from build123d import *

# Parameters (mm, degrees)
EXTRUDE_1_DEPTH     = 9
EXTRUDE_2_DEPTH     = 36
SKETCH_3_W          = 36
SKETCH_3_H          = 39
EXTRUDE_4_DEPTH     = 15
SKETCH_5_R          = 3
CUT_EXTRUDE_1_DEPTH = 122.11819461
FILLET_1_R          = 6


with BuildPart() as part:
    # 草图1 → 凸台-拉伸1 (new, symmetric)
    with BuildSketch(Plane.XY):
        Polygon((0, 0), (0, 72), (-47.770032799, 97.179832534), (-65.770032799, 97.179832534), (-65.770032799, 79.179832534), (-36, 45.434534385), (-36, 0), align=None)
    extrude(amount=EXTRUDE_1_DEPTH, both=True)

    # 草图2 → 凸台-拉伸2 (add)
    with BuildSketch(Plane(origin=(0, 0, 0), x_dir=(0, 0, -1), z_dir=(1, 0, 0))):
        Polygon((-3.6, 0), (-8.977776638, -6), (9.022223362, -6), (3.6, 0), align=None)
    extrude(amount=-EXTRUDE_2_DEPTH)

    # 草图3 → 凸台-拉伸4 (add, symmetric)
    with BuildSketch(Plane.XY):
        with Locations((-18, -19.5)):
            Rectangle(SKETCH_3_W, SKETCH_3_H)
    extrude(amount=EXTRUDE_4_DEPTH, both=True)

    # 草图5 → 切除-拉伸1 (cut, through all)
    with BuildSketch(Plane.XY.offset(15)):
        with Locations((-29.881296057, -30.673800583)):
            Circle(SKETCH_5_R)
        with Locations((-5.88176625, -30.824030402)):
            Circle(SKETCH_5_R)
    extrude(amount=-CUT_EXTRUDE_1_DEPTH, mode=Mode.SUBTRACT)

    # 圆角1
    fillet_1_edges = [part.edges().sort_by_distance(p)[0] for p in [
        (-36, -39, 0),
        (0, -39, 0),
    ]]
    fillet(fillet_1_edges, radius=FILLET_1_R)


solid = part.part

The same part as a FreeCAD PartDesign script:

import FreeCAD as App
import Part
import Sketcher
from FreeCAD import Vector


def edges_at(feature, points):
    """Names of the edges that pass closest to the given points."""
    edges = feature.Shape.Edges
    near = lambda p: min(range(len(edges)), key=lambda i: edges[i].distToShape(Part.Vertex(*p))[0])
    return sorted({f"Edge{near(p) + 1}" for p in points})

doc = App.newDocument("Part")
body = doc.addObject("PartDesign::Body", "Body")

# Sketch on XY plane
sketch1 = doc.addObject("Sketcher::SketchObject", "Sketch")
body.addObject(sketch1)
sketch1.AttachmentSupport = (doc.XY_Plane, [""])
sketch1.MapMode = "FlatFace"
sketch1.addGeometry([
    Part.LineSegment(Vector(0, 0, 0), Vector(0, 72, 0)),  # 0
    Part.LineSegment(Vector(0, 72, 0), Vector(-47.770033, 97.179833, 0)),  # 1
    Part.LineSegment(Vector(-47.770033, 97.179833, 0), Vector(-65.770033, 97.179833, 0)),  # 2
    Part.LineSegment(Vector(-65.770033, 97.179833, 0), Vector(-65.770033, 79.179833, 0)),  # 3
    Part.LineSegment(Vector(-65.770033, 79.179833, 0), Vector(-36, 45.434534, 0)),  # 4
    Part.LineSegment(Vector(-36, 45.434534, 0), Vector(-36, 0, 0)),  # 5
    Part.LineSegment(Vector(-36, 0, 0), Vector(0, 0, 0)),  # 6
], False)
sketch1.addConstraint([
    Sketcher.Constraint("Coincident", 0, 2, 1, 1),
    Sketcher.Constraint("Coincident", 1, 2, 2, 1),
    Sketcher.Constraint("Coincident", 2, 2, 3, 1),
    Sketcher.Constraint("Coincident", 3, 2, 4, 1),
    Sketcher.Constraint("Coincident", 4, 2, 5, 1),
    Sketcher.Constraint("Coincident", 5, 2, 6, 1),
    Sketcher.Constraint("Coincident", 6, 2, 0, 1),
    Sketcher.Constraint("Vertical", 0),
    Sketcher.Constraint("Horizontal", 2),
    Sketcher.Constraint("Vertical", 3),
    Sketcher.Constraint("Vertical", 5),
    Sketcher.Constraint("Horizontal", 6),
    Sketcher.Constraint("Coincident", 6, 2, -1, 1),
    Sketcher.Constraint("Equal", 2, 3),
    Sketcher.Constraint("DistanceX", 2, 2, 2, 1, 18.0),
    Sketcher.Constraint("DistanceX", 6, 1, 6, 2, 36.0),
    Sketcher.Constraint("DistanceY", 0, 1, 0, 2, 72.0),
    Sketcher.Constraint("Distance", 1, 54.0),
    Sketcher.Constraint("Distance", 4, 45.0),
    Sketcher.Constraint("DistanceY", 4, 2, 3, 2, 33.745298),
])
pad1 = doc.addObject("PartDesign::Pad", "Pad")
body.addObject(pad1)
pad1.Profile = sketch1
pad1.Length = 18
pad1.Midplane = True

# Sketch on YZ plane
sketch2 = doc.addObject("Sketcher::SketchObject", "Sketch001")
body.addObject(sketch2)
sketch2.AttachmentSupport = (doc.YZ_Plane, [""])
sketch2.MapMode = "FlatFace"
sketch2.addGeometry([
    Part.LineSegment(Vector(0, 3.6, 0), Vector(-6, 8.977777, 0)),
    Part.LineSegment(Vector(-6, 8.977777, 0), Vector(-6, -9.022223, 0)),
    Part.LineSegment(Vector(-6, -9.022223, 0), Vector(0, -3.6, 0)),
    Part.LineSegment(Vector(0, -3.6, 0), Vector(0, 3.6, 0)),
], False)
sketch2.addConstraint([
    Sketcher.Constraint("Coincident", 0, 2, 1, 1),
    Sketcher.Constraint("Coincident", 1, 2, 2, 1),
    Sketcher.Constraint("Coincident", 2, 2, 3, 1),
    Sketcher.Constraint("Coincident", 3, 2, 0, 1),
    Sketcher.Constraint("Vertical", 1),
    Sketcher.Constraint("Vertical", 3),
    Sketcher.Constraint("Symmetric", 2, 2, 3, 2, -1, 1),
    Sketcher.Constraint("DistanceY", 1, 2, 1, 1, 18.0),
    Sketcher.Constraint("DistanceY", 3, 1, 3, 2, 7.2),
    Sketcher.Constraint("DistanceX", 0, 2, -1, 1, 6.0),
    Sketcher.Constraint("Distance", 0, 8.057325),
])
pad2 = doc.addObject("PartDesign::Pad", "Pad001")
body.addObject(pad2)
pad2.Profile = sketch2
pad2.Length = 36
pad2.Reversed = True

# Sketch on XY plane
sketch3 = doc.addObject("Sketcher::SketchObject", "Sketch002")
body.addObject(sketch3)
sketch3.AttachmentSupport = (doc.XY_Plane, [""])
sketch3.MapMode = "FlatFace"
sketch3.addGeometry([
    Part.LineSegment(Vector(-36, 0, 0), Vector(-36, -39, 0)),
    Part.LineSegment(Vector(-36, -39, 0), Vector(0, -39, 0)),
    Part.LineSegment(Vector(0, -39, 0), Vector(0, 0, 0)),
    Part.LineSegment(Vector(0, 0, 0), Vector(-36, 0, 0)),
], False)
sketch3.addConstraint([
    Sketcher.Constraint("Coincident", 0, 2, 1, 1),
    Sketcher.Constraint("Coincident", 1, 2, 2, 1),
    Sketcher.Constraint("Coincident", 2, 2, 3, 1),
    Sketcher.Constraint("Coincident", 3, 2, 0, 1),
    Sketcher.Constraint("Vertical", 0),
    Sketcher.Constraint("Horizontal", 1),
    Sketcher.Constraint("Vertical", 2),
    Sketcher.Constraint("Horizontal", 3),
    Sketcher.Constraint("Coincident", 2, 2, -1, 1),
    Sketcher.Constraint("DistanceX", 1, 1, 1, 2, 36.0),
    Sketcher.Constraint("DistanceY", 0, 2, 0, 1, 39.0),
])
pad3 = doc.addObject("PartDesign::Pad", "Pad002")
body.addObject(pad3)
pad3.Profile = sketch3
pad3.Length = 30
pad3.Midplane = True

# Sketch on XY plane
sketch4 = doc.addObject("Sketcher::SketchObject", "Sketch003")
body.addObject(sketch4)
sketch4.AttachmentSupport = (doc.XY_Plane, [""])
sketch4.MapMode = "FlatFace"
sketch4.AttachmentOffset = App.Placement(Vector(0, 0, 15), App.Rotation())
sketch4.addGeometry([
    Part.Circle(Vector(-29.881296, -30.673801, 0), Vector(0, 0, 1), 3),
    Part.Circle(Vector(-5.881766, -30.82403, 0), Vector(0, 0, 1), 3),
], False)
sketch4.addConstraint([
    Sketcher.Constraint("Equal", 0, 1),
    Sketcher.Constraint("Diameter", 0, 6.0),
    Sketcher.Constraint("DistanceY", 0, 3, -1, 1, 30.673801),
    Sketcher.Constraint("DistanceY", 1, 3, -1, 1, 30.82403),
    Sketcher.Constraint("DistanceX", 0, 3, 1, 3, 23.99953),
    Sketcher.Constraint("DistanceX", 0, 3, -1, 1, 29.881296),
])
pocket1 = doc.addObject("PartDesign::Pocket", "Pocket")
body.addObject(pocket1)
pocket1.Profile = sketch4
pocket1.Type = "ThroughAll"
doc.recompute()

fillet = doc.addObject("PartDesign::Fillet", "Fillet")
body.addObject(fillet)
fillet.Base = (pocket1, edges_at(pocket1, [(-36, -39, 0), (0, -39, 0)]))
fillet.Radius = 6

doc.recompute()
